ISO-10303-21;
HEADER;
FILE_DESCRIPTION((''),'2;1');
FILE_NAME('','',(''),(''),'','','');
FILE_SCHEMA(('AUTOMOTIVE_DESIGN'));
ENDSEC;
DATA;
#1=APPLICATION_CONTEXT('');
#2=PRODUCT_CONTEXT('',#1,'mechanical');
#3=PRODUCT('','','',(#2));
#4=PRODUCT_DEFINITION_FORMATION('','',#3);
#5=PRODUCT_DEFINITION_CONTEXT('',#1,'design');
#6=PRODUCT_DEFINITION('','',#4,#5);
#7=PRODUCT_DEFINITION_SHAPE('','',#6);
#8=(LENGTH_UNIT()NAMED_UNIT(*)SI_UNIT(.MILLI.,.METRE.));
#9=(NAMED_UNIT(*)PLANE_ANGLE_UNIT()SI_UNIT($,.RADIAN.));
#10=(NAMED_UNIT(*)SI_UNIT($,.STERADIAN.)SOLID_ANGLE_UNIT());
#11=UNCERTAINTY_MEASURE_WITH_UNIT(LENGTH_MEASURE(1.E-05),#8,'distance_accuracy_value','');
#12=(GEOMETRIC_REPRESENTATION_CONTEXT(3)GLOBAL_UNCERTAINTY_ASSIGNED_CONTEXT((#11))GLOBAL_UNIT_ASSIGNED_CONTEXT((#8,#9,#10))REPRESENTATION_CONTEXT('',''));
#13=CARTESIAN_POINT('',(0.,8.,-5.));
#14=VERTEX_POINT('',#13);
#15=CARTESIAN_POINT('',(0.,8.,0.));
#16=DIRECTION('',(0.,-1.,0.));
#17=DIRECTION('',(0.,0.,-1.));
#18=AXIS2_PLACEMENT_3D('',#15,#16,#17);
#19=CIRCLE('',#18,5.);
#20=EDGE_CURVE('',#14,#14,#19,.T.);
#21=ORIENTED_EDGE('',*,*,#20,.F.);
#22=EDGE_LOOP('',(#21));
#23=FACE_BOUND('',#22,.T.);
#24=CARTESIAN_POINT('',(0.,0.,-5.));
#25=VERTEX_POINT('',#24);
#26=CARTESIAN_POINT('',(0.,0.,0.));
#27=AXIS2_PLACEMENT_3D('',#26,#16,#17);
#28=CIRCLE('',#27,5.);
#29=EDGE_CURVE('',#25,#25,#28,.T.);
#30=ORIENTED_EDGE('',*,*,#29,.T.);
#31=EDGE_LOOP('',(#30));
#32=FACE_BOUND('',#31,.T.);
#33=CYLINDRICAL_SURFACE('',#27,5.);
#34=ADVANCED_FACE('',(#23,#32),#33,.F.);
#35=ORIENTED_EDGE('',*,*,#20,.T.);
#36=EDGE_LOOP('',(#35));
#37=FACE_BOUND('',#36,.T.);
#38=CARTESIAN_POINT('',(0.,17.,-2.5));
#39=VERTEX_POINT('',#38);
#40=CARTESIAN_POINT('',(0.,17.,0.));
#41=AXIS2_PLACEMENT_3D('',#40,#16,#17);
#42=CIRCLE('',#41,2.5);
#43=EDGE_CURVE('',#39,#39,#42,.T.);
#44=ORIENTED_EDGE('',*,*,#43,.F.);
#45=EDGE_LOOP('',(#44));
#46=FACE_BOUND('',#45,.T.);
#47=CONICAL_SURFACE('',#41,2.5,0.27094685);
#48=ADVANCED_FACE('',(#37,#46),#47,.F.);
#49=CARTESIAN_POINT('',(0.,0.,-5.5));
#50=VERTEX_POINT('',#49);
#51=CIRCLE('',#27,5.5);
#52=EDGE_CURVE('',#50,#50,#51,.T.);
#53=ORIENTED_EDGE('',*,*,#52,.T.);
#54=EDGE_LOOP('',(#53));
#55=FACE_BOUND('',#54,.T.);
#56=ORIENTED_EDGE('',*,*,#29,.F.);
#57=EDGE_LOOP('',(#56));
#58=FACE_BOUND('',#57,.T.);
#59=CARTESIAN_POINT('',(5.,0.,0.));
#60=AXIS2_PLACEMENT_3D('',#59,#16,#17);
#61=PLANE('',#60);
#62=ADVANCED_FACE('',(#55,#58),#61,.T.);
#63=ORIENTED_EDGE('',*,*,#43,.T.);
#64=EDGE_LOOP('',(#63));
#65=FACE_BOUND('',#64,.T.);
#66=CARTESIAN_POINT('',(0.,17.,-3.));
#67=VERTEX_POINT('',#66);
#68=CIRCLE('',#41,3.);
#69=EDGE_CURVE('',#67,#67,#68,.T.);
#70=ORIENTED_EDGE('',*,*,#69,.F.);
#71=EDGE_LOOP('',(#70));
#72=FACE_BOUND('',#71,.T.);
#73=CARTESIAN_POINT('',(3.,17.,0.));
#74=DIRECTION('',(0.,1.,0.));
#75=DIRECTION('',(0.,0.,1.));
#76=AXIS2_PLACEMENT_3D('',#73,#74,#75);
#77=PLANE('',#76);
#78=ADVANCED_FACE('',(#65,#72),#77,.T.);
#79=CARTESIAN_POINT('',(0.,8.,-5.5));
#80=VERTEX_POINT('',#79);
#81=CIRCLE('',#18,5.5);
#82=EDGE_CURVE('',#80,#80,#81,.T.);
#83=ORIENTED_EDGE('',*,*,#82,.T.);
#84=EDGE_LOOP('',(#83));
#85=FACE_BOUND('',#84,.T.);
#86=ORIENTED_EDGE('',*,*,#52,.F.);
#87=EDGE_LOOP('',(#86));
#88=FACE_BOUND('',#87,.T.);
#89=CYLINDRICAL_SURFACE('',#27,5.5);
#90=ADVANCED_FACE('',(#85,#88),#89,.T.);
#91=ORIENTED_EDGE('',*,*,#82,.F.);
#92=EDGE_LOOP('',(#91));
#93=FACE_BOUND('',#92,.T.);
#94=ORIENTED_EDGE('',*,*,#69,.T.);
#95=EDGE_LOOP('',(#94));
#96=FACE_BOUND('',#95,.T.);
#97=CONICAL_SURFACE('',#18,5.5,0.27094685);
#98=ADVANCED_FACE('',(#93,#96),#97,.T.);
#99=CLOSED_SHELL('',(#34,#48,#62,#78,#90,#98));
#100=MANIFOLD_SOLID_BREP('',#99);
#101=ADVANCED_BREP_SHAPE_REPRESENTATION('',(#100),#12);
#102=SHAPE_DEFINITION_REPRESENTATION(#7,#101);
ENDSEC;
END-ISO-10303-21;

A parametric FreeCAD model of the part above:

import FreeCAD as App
import Part
import Sketcher
from FreeCAD import Vector

doc = App.newDocument("Part")
body = doc.addObject("PartDesign::Body", "Body")

# Sketch on XY plane
sketch1 = body.newObject("Sketcher::SketchObject", "Sketch")
sketch1.AttachmentSupport = (doc.getObject("XY_Plane"), [""])
sketch1.MapMode = "FlatFace"
sketch1.addGeometry(Part.LineSegment(Vector(5.5, 0, 0), Vector(5.5, 8, 0)), False)
sketch1.addGeometry(Part.LineSegment(Vector(5.5, 8, 0), Vector(3, 17, 0)), False)
sketch1.addGeometry(Part.LineSegment(Vector(3, 17, 0), Vector(2.5, 17, 0)), False)
sketch1.addGeometry(Part.LineSegment(Vector(2.5, 17, 0), Vector(5, 8, 0)), False)
sketch1.addGeometry(Part.LineSegment(Vector(5, 8, 0), Vector(5, 0, 0)), False)
sketch1.addGeometry(Part.LineSegment(Vector(5, 0, 0), Vector(5.5, 0, 0)), False)
sketch1.addConstraint(Sketcher.Constraint("Coincident", 0, 2, 1, 1))
sketch1.addConstraint(Sketcher.Constraint("Coincident", 1, 2, 2, 1))
sketch1.addConstraint(Sketcher.Constraint("Coincident", 2, 2, 3, 1))
sketch1.addConstraint(Sketcher.Constraint("Coincident", 3, 2, 4, 1))
sketch1.addConstraint(Sketcher.Constraint("Coincident", 4, 2, 5, 1))
sketch1.addConstraint(Sketcher.Constraint("Coincident", 5, 2, 0, 1))
sketch1.addConstraint(Sketcher.Constraint("Vertical", 0))
sketch1.addConstraint(Sketcher.Constraint("Horizontal", 2))
sketch1.addConstraint(Sketcher.Constraint("Vertical", 4))
sketch1.addConstraint(Sketcher.Constraint("Horizontal", 5))
sketch1.addConstraint(Sketcher.Constraint("PointOnObject", 4, 2, -1))
sketch1.addConstraint(Sketcher.Constraint("Parallel", 1, 3))
sketch1.addConstraint(Sketcher.Constraint("Horizontal", 0, 2, 3, 2))
sketch1.addConstraint(Sketcher.Constraint("DistanceY", 0, 1, 0, 2, 8.0))
sketch1.addConstraint(Sketcher.Constraint("DistanceX", 2, 2, 2, 1, 0.5))
sketch1.addConstraint(Sketcher.Constraint("DistanceX", -1, 1, 1, 2, 3.0))
sketch1.addConstraint(Sketcher.Constraint("DistanceY", -1, 1, 1, 2, 17.0))
sketch1.addConstraint(Sketcher.Constraint("DistanceX", -1, 1, 3, 2, 5.0))
revolution = body.newObject("PartDesign::Revolution", "Revolution")
revolution.Profile = sketch1
revolution.ReferenceAxis = (sketch1, ["V_Axis"])
revolution.Angle = 360

doc.recompute()
